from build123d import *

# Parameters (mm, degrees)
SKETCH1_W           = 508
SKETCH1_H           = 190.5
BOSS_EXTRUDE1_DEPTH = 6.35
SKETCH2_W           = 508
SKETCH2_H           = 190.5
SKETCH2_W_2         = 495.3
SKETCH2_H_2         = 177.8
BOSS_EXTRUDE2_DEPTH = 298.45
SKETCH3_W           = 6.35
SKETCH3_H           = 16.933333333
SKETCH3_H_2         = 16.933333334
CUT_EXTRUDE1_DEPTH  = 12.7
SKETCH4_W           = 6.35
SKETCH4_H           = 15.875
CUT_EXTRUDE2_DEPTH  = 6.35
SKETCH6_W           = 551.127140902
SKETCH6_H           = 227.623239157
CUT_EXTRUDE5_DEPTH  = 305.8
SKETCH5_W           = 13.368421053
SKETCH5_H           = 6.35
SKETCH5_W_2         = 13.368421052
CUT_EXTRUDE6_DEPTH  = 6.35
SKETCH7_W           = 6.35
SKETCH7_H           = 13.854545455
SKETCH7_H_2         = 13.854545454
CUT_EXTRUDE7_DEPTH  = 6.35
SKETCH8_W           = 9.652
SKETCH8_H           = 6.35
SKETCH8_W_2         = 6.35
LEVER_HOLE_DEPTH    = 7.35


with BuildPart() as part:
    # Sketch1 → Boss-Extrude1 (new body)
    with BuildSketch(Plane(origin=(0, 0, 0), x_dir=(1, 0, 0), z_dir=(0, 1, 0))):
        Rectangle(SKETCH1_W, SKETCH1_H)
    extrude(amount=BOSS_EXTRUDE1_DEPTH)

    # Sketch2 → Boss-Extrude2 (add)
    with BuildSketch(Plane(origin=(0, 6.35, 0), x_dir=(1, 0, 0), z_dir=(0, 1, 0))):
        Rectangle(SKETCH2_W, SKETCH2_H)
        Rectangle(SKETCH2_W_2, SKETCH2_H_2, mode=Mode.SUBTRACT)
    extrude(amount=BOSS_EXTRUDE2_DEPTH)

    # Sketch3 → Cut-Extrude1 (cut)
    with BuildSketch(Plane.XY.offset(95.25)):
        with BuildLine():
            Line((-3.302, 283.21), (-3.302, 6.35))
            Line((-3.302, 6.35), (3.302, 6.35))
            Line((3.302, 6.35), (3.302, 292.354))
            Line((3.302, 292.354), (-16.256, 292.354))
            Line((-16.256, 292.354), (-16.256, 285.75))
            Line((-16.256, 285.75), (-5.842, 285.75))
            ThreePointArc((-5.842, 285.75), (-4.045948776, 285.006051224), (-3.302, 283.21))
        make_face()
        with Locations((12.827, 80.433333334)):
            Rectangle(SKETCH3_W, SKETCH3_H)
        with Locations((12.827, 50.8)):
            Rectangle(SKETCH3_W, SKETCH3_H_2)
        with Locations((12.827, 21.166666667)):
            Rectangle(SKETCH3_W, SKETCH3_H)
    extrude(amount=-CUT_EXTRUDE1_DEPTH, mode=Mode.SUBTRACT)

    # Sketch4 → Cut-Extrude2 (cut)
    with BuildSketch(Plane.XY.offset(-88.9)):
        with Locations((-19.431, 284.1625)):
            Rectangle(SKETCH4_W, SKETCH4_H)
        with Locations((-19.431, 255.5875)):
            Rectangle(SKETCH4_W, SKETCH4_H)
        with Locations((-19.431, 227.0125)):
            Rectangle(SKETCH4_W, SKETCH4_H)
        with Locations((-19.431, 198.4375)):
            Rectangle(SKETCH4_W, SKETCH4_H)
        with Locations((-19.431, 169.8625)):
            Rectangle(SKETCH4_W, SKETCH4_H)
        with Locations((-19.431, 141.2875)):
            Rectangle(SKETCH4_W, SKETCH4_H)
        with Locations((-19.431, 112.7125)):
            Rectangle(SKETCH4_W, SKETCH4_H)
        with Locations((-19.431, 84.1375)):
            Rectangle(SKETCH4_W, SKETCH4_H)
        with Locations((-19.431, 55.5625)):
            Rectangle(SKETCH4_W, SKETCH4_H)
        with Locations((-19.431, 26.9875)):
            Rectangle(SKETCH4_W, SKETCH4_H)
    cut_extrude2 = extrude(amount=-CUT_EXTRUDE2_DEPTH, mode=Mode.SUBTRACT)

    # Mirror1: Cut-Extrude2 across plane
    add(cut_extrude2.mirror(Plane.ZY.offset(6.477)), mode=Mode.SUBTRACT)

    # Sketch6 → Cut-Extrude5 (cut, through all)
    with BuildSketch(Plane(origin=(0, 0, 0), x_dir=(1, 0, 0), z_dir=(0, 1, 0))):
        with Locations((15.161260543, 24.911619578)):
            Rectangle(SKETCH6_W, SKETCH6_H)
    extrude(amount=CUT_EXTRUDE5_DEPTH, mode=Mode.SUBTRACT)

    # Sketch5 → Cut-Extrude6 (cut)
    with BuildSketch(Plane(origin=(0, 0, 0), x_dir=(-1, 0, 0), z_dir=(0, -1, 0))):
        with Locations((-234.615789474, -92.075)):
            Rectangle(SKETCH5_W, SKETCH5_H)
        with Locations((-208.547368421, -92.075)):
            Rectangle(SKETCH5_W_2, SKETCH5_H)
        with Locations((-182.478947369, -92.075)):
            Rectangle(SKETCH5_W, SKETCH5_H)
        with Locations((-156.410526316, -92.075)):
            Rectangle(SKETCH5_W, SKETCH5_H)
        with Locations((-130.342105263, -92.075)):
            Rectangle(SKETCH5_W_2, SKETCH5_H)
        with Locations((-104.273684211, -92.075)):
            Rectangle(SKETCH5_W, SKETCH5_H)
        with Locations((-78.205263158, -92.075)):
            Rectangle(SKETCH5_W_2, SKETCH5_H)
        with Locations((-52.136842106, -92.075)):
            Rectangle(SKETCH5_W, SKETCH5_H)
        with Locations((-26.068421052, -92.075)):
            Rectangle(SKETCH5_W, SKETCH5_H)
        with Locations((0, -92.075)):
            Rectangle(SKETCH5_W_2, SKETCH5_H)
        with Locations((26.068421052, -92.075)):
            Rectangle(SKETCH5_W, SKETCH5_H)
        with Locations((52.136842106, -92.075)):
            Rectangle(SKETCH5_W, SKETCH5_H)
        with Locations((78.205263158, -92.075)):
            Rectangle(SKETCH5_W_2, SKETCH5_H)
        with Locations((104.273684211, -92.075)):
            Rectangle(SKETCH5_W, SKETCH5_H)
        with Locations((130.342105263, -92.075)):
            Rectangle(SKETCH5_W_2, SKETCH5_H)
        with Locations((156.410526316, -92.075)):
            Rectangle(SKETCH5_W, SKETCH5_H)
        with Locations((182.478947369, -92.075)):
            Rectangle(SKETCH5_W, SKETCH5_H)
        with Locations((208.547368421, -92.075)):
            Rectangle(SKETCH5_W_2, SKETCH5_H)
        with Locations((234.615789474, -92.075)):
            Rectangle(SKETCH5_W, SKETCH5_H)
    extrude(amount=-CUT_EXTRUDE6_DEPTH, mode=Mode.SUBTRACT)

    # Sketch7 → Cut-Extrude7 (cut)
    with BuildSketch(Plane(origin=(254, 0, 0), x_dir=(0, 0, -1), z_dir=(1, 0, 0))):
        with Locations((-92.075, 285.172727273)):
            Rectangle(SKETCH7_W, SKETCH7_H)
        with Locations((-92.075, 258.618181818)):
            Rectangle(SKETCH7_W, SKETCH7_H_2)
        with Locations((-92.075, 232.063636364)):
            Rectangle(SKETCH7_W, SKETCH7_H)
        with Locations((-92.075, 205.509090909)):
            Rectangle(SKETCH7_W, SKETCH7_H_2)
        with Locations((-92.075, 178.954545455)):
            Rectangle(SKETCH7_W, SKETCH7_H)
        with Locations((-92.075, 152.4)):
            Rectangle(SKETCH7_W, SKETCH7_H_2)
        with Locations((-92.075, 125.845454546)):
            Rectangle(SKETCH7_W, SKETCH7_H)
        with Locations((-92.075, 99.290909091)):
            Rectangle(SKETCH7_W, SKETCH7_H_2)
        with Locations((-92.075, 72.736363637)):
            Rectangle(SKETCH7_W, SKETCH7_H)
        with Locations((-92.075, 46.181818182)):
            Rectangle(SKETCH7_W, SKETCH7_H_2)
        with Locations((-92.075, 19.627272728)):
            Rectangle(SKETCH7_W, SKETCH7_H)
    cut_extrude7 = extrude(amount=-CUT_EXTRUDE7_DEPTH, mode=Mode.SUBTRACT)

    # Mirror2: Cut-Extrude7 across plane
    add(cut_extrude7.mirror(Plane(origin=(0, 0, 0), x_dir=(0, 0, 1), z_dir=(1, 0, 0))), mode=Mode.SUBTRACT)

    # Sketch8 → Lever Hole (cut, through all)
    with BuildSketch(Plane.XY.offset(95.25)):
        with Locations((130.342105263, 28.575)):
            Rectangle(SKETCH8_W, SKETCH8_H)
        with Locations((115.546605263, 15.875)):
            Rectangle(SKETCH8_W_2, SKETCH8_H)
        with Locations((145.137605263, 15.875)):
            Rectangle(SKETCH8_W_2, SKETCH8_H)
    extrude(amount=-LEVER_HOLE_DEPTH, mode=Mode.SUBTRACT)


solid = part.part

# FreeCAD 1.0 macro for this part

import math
import FreeCAD as App
import Part
import Sketcher
Q = App.Units.Quantity


def add_polygon(sketch, points):
    """Adds a closed chain of lines whose ends are joined by coincident constraints."""
    first, n = sketch.GeometryCount, len(points)
    for a, b in zip(points, points[1:] + points[:1]):
        sketch.addGeometry(Part.LineSegment(App.Vector(*a, 0), App.Vector(*b, 0)), False)
    for i in range(n):
        sketch.addConstraint(Sketcher.Constraint("Coincident", first + i, 2, first + (i + 1) % n, 1))

doc = App.newDocument("Part")
body = doc.addObject("PartDesign::Body", "Body")

# Sketch on XZ plane
sketch1 = body.newObject("Sketcher::SketchObject", "Sketch")
sketch1.AttachmentSupport = (doc.getObject("XZ_Plane"), [""])
sketch1.MapMode = "FlatFace"
add_polygon(sketch1, [(-254, -95.25), (-254, 95.25), (254, 95.25), (254, -95.25)])  # lines 0-3
sketch1.addConstraint(Sketcher.Constraint("Vertical", 0))
sketch1.addConstraint(Sketcher.Constraint("Horizontal", 1))
sketch1.addConstraint(Sketcher.Constraint("Vertical", 2))
sketch1.addConstraint(Sketcher.Constraint("Horizontal", 3))
sketch1.addConstraint(Sketcher.Constraint("Symmetric", 0, 2, 2, 2, -1, 1))
sketch1.addConstraint(Sketcher.Constraint("DistanceX", 1, 1, 1, 2, Q("20 in")))
sketch1.addConstraint(Sketcher.Constraint("DistanceY", 0, 1, 0, 2, Q("7.5 in")))
pad1 = body.newObject("PartDesign::Pad", "Pad")
pad1.Profile = sketch1
pad1.Length = Q("0.25 in")
pad1.Reversed = True

# Sketch on XZ plane
sketch2 = body.newObject("Sketcher::SketchObject", "Sketch001")
sketch2.AttachmentSupport = (doc.getObject("XZ_Plane"), [""])
sketch2.MapMode = "FlatFace"
sketch2.AttachmentOffset = App.Placement(App.Vector(0, 0, -0.25 * 25.4), App.Rotation())
add_polygon(sketch2, [(-254, -95.25), (-254, 95.25), (254, 95.25), (254, -95.25)])  # lines 0-3
add_polygon(sketch2, [(247.65, 88.9), (-247.65, 88.9), (-247.65, -88.9), (247.65, -88.9)])  # lines 4-7
sketch2.addConstraint(Sketcher.Constraint("Vertical", 0))
sketch2.addConstraint(Sketcher.Constraint("Horizontal", 1))
sketch2.addConstraint(Sketcher.Constraint("Vertical", 2))
sketch2.addConstraint(Sketcher.Constraint("Horizontal", 3))
sketch2.addConstraint(Sketcher.Constraint("Horizontal", 4))
sketch2.addConstraint(Sketcher.Constraint("Vertical", 5))
sketch2.addConstraint(Sketcher.Constraint("Horizontal", 6))
sketch2.addConstraint(Sketcher.Constraint("Vertical", 7))
sketch2.addConstraint(Sketcher.Constraint("Symmetric", 0, 2, 2, 2, -1, 1))
sketch2.addConstraint(Sketcher.Constraint("Symmetric", 4, 2, 6, 2, -1, 1))
sketch2.addConstraint(Sketcher.Constraint("DistanceX", 1, 1, 1, 2, Q("20 in")))
sketch2.addConstraint(Sketcher.Constraint("DistanceY", 5, 2, 5, 1, Q("7 in")))
sketch2.addConstraint(Sketcher.Constraint("DistanceX", 4, 2, 4, 1, Q("19.5 in")))
sketch2.addConstraint(Sketcher.Constraint("DistanceY", 0, 1, 0, 2, Q("7.5 in")))
pad2 = body.newObject("PartDesign::Pad", "Pad001")
pad2.Profile = sketch2
pad2.Length = Q("11.75 in")
pad2.Reversed = True

# Sketch on XY plane
sketch3 = body.newObject("Sketcher::SketchObject", "Sketch002")
sketch3.AttachmentSupport = (doc.getObject("XY_Plane"), [""])
sketch3.MapMode = "FlatFace"
sketch3.AttachmentOffset = App.Placement(App.Vector(0, 0, 3.75 * 25.4), App.Rotation())
sketch3.addGeometry(Part.LineSegment(App.Vector(-3.302, 283.21, 0), App.Vector(-3.302, 6.35, 0)), False)  # 0
sketch3.addGeometry(Part.LineSegment(App.Vector(-3.302, 6.35, 0), App.Vector(3.302, 6.35, 0)), False)  # 1
sketch3.addGeometry(Part.LineSegment(App.Vector(3.302, 6.35, 0), App.Vector(3.302, 292.354, 0)), False)  # 2
sketch3.addGeometry(Part.LineSegment(App.Vector(3.302, 292.354, 0), App.Vector(-16.256, 292.354, 0)), False)  # 3
sketch3.addGeometry(Part.LineSegment(App.Vector(-16.256, 292.354, 0), App.Vector(-16.256, 285.75, 0)), False)  # 4
sketch3.addGeometry(Part.LineSegment(App.Vector(-16.256, 285.75, 0), App.Vector(-5.842, 285.75, 0)), False)  # 5
sketch3.addGeometry(Part.ArcOfCircle(Part.Circle(App.Vector(-5.842, 283.21, 0), App.Vector(0, 0, 1), 2.54), math.radians(0), math.radians(90)), False)  # 6
add_polygon(sketch3, [(9.652, 88.9), (9.652, 71.966667), (16.002, 71.966667), (16.002, 88.9)])  # lines 7-10
add_polygon(sketch3, [(9.652, 59.266667), (9.652, 42.333333), (16.002, 42.333333), (16.002, 59.266667)])  # lines 11-14
add_polygon(sketch3, [(9.652, 29.633333), (9.652, 12.7), (16.002, 12.7), (16.002, 29.633333)])  # lines 15-18
sketch3.addConstraint(Sketcher.Constraint("Coincident", 0, 2, 1, 1))
sketch3.addConstraint(Sketcher.Constraint("Coincident", 1, 2, 2, 1))
sketch3.addConstraint(Sketcher.Constraint("Coincident", 2, 2, 3, 1))
sketch3.addConstraint(Sketcher.Constraint("Coincident", 3, 2, 4, 1))
sketch3.addConstraint(Sketcher.Constraint("Coincident", 4, 2, 5, 1))
sketch3.addConstraint(Sketcher.Constraint("Tangent", 5, 2, 6, 2))
sketch3.addConstraint(Sketcher.Constraint("Tangent", 6, 1, 0, 1))
sketch3.addConstraint(Sketcher.Constraint("Vertical", 0))
sketch3.addConstraint(Sketcher.Constraint("Horizontal", 1))
sketch3.addConstraint(Sketcher.Constraint("Vertical", 2))
sketch3.addConstraint(Sketcher.Constraint("Horizontal", 3))
sketch3.addConstraint(Sketcher.Constraint("Vertical", 4))
sketch3.addConstraint(Sketcher.Constraint("Horizontal", 5))
sketch3.addConstraint(Sketcher.Constraint("Vertical", 7))
sketch3.addConstraint(Sketcher.Constraint("Horizontal", 8))
sketch3.addConstraint(Sketcher.Constraint("Vertical", 9))
sketch3.addConstraint(Sketcher.Constraint("Horizontal", 10))
sketch3.addConstraint(Sketcher.Constraint("Vertical", 11))
sketch3.addConstraint(Sketcher.Constraint("Horizontal", 12))
sketch3.addConstraint(Sketcher.Constraint("Vertical", 13))
sketch3.addConstraint(Sketcher.Constraint("Horizontal", 14))
sketch3.addConstraint(Sketcher.Constraint("Vertical", 15))
sketch3.addConstraint(Sketcher.Constraint("Horizontal", 16))
sketch3.addConstraint(Sketcher.Constraint("Vertical", 17))
sketch3.addConstraint(Sketcher.Constraint("Horizontal", 18))
sketch3.addConstraint(Sketcher.Constraint("Vertical", 10, 2, 11, 2))
sketch3.addConstraint(Sketcher.Constraint("Vertical", 9, 2, 12, 2))
sketch3.addConstraint(Sketcher.Constraint("Vertical", 14, 2, 15, 2))
sketch3.addConstraint(Sketcher.Constraint("Vertical", 13, 2, 16, 2))
sketch3.addConstraint(Sketcher.Constraint("Equal", 1, 4))
sketch3.addConstraint(Sketcher.Constraint("Equal", 9, 11))
sketch3.addConstraint(Sketcher.Constraint("Equal", 13, 15))
sketch3.addConstraint(Sketcher.Constraint("Radius", 6, Q("0.1 in")))
sketch3.addConstraint(Sketcher.Constraint("DistanceY", 0, 2, 0, 1, Q("10.9 in")))
sketch3.addConstraint(Sketcher.Constraint("DistanceX", 1, 1, 1, 2, Q("0.26 in")))
sketch3.addConstraint(Sketcher.Constraint("DistanceX", 3, 2, 3, 1, Q("0.77 in")))
sketch3.addConstraint(Sketcher.Constraint("DistanceX", 8, 1, 8, 2, Q("0.25 in")))
sketch3.addConstraint(Sketcher.Constraint("DistanceY", -1, 1, 9, 2, Q("3.5 in")))
sketch3.addConstraint(Sketcher.Constraint("DistanceY", -1, 1, 15, 2, Q("0.5 in")))
sketch3.addConstraint(Sketcher.Constraint("DistanceX", 1, 2, 8, 2, Q("0.5 in")))
sketch3.addConstraint(Sketcher.Constraint("DistanceY", 13, 2, 8, 2, Q("0.5 in")))
sketch3.addConstraint(Sketcher.Constraint("DistanceY", 17, 2, 12, 2, Q("0.5 in")))
sketch3.addConstraint(Sketcher.Constraint("DistanceX", 6, 3, -1, 1, Q("0.23 in")))
sketch3.addConstraint(Sketcher.Constraint("DistanceY", -1, 1, 6, 3, Q("11.15 in")))
pocket1 = body.newObject("PartDesign::Pocket", "Pocket")
pocket1.Profile = sketch3
pocket1.Length = Q("0.5 in")

# Sketch on XY plane
sketch4 = body.newObject("Sketcher::SketchObject", "Sketch003")
sketch4.AttachmentSupport = (doc.getObject("XY_Plane"), [""])
sketch4.MapMode = "FlatFace"
sketch4.AttachmentOffset = App.Placement(App.Vector(0, 0, -3.5 * 25.4), App.Rotation())
add_polygon(sketch4, [(-22.606, 292.1), (-22.606, 276.225), (-16.256, 276.225), (-16.256, 292.1)])  # lines 0-3
add_polygon(sketch4, [(-22.606, 263.525), (-22.606, 247.65), (-16.256, 247.65), (-16.256, 263.525)])  # lines 4-7
add_polygon(sketch4, [(-22.606, 234.95), (-22.606, 219.075), (-16.256, 219.075), (-16.256, 234.95)])  # lines 8-11
add_polygon(sketch4, [(-22.606, 206.375), (-22.606, 190.5), (-16.256, 190.5), (-16.256, 206.375)])  # lines 12-15
add_polygon(sketch4, [(-22.606, 177.8), (-22.606, 161.925), (-16.256, 161.925), (-16.256, 177.8)])  # lines 16-19
add_polygon(sketch4, [(-22.606, 149.225), (-22.606, 133.35), (-16.256, 133.35), (-16.256, 149.225)])  # lines 20-23
add_polygon(sketch4, [(-22.606, 120.65), (-22.606, 104.775), (-16.256, 104.775), (-16.256, 120.65)])  # lines 24-27
add_polygon(sketch4, [(-22.606, 92.075), (-22.606, 76.2), (-16.256, 76.2), (-16.256, 92.075)])  # lines 28-31
add_polygon(sketch4, [(-22.606, 63.5), (-22.606, 47.625), (-16.256, 47.625), (-16.256, 63.5)])  # lines 32-35
add_polygon(sketch4, [(-22.606, 34.925), (-22.606, 19.05), (-16.256, 19.05), (-16.256, 34.925)])  # lines 36-39
sketch4.addConstraint(Sketcher.Constraint("Vertical", 0))
sketch4.addConstraint(Sketcher.Constraint("Horizontal", 1))
sketch4.addConstraint(Sketcher.Constraint("Vertical", 2))
sketch4.addConstraint(Sketcher.Constraint("Horizontal", 3))
sketch4.addConstraint(Sketcher.Constraint("Vertical", 4))
sketch4.addConstraint(Sketcher.Constraint("Horizontal", 5))
sketch4.addConstraint(Sketcher.Constraint("Vertical", 6))
sketch4.addConstraint(Sketcher.Constraint("Horizontal", 7))
sketch4.addConstraint(Sketcher.Constraint("Vertical", 8))
sketch4.addConstraint(Sketcher.Constraint("Horizontal", 9))
sketch4.addConstraint(Sketcher.Constraint("Vertical", 10))
sketch4.addConstraint(Sketcher.Constraint("Horizontal", 11))
sketch4.addConstraint(Sketcher.Constraint("Vertical", 12))
sketch4.addConstraint(Sketcher.Constraint("Horizontal", 13))
sketch4.addConstraint(Sketcher.Constraint("Vertical", 14))
sketch4.addConstraint(Sketcher.Constraint("Horizontal", 15))
sketch4.addConstraint(Sketcher.Constraint("Vertical", 16))
sketch4.addConstraint(Sketcher.Constraint("Horizontal", 17))
sketch4.addConstraint(Sketcher.Constraint("Vertical", 18))
sketch4.addConstraint(Sketcher.Constraint("Horizontal", 19))
sketch4.addConstraint(Sketcher.Constraint("Vertical", 20))
sketch4.addConstraint(Sketcher.Constraint("Horizontal", 21))
sketch4.addConstraint(Sketcher.Constraint("Vertical", 22))
sketch4.addConstraint(Sketcher.Constraint("Horizontal", 23))
sketch4.addConstraint(Sketcher.Constraint("Vertical", 24))
sketch4.addConstraint(Sketcher.Constraint("Horizontal", 25))
sketch4.addConstraint(Sketcher.Constraint("Vertical", 26))
sketch4.addConstraint(Sketcher.Constraint("Horizontal", 27))
sketch4.addConstraint(Sketcher.Constraint("Vertical", 28))
sketch4.addConstraint(Sketcher.Constraint("Horizontal", 29))
sketch4.addConstraint(Sketcher.Constraint("Vertical", 30))
sketch4.addConstraint(Sketcher.Constraint("Horizontal", 31))
sketch4.addConstraint(Sketcher.Constraint("Vertical", 32))
sketch4.addConstraint(Sketcher.Constraint("Horizontal", 33))
sketch4.addConstraint(Sketcher.Constraint("Vertical", 34))
sketch4.addConstraint(Sketcher.Constraint("Horizontal", 35))
sketch4.addConstraint(Sketcher.Constraint("Vertical", 36))
sketch4.addConstraint(Sketcher.Constraint("Horizontal", 37))
sketch4.addConstraint(Sketcher.Constraint("Vertical", 38))
sketch4.addConstraint(Sketcher.Constraint("Horizontal", 39))
sketch4.addConstraint(Sketcher.Constraint("Vertical", 3, 2, 4, 2))
sketch4.addConstraint(Sketcher.Constraint("Vertical", 2, 2, 5, 2))
sketch4.addConstraint(Sketcher.Constraint("Vertical", 7, 2, 8, 2))
sketch4.addConstraint(Sketcher.Constraint("Vertical", 6, 2, 9, 2))
sketch4.addConstraint(Sketcher.Constraint("Vertical", 11, 2, 12, 2))
sketch4.addConstraint(Sketcher.Constraint("Vertical", 10, 2, 13, 2))
sketch4.addConstraint(Sketcher.Constraint("Vertical", 15, 2, 16, 2))
sketch4.addConstraint(Sketcher.Constraint("Vertical", 14, 2, 17, 2))
sketch4.addConstraint(Sketcher.Constraint("Vertical", 19, 2, 20, 2))
sketch4.addConstraint(Sketcher.Constraint("Vertical", 18, 2, 21, 2))
sketch4.addConstraint(Sketcher.Constraint("Vertical", 23, 2, 24, 2))
sketch4.addConstraint(Sketcher.Constraint("Vertical", 22, 2, 25, 2))
sketch4.addConstraint(Sketcher.Constraint("Vertical", 27, 2, 28, 2))
sketch4.addConstraint(Sketcher.Constraint("Vertical", 26, 2, 29, 2))
sketch4.addConstraint(Sketcher.Constraint("Vertical", 31, 2, 32, 2))
sketch4.addConstraint(Sketcher.Constraint("Vertical", 30, 2, 33, 2))
sketch4.addConstraint(Sketcher.Constraint("Vertical", 35, 2, 36, 2))
sketch4.addConstraint(Sketcher.Constraint("Vertical", 34, 2, 37, 2))
sketch4.addConstraint(Sketcher.Constraint("Equal", 2, 4))
sketch4.addConstraint(Sketcher.Constraint("Equal", 6, 8))
sketch4.addConstraint(Sketcher.Constraint("Equal", 10, 12))
sketch4.addConstraint(Sketcher.Constraint("Equal", 14, 16))
sketch4.addConstraint(Sketcher.Constraint("Equal", 18, 20))
sketch4.addConstraint(Sketcher.Constraint("Equal", 22, 24))
sketch4.addConstraint(Sketcher.Constraint("Equal", 26, 28))
sketch4.addConstraint(Sketcher.Constraint("Equal", 30, 32))
sketch4.addConstraint(Sketcher.Constraint("Equal", 34, 36))
sketch4.addConstraint(Sketcher.Constraint("DistanceY", -1, 1, 18, 2, Q("7 in")))
sketch4.addConstraint(Sketcher.Constraint("DistanceY", -1, 1, 28, 2, Q("3 in")))
sketch4.addConstraint(Sketcher.Constraint("DistanceX", 1, 1, 1, 2, Q("0.25 in")))
sketch4.addConstraint(Sketcher.Constraint("DistanceY", -1, 1, 2, 2, Q("11.5 in")))
sketch4.addConstraint(Sketcher.Constraint("DistanceY", -1, 1, 12, 2, Q("7.5 in")))
sketch4.addConstraint(Sketcher.Constraint("DistanceY", -1, 1, 34, 2, Q("2.5 in")))
sketch4.addConstraint(Sketcher.Constraint("DistanceY", 6, 2, 1, 2, Q("0.5 in")))
sketch4.addConstraint(Sketcher.Constraint("DistanceY", 10, 2, 5, 2, Q("0.5 in")))
sketch4.addConstraint(Sketcher.Constraint("DistanceY", 14, 2, 9, 2, Q("0.5 in")))
sketch4.addConstraint(Sketcher.Constraint("DistanceY", 22, 2, 17, 2, Q("0.5 in")))
sketch4.addConstraint(Sketcher.Constraint("DistanceY", 26, 2, 21, 2, Q("0.5 in")))
sketch4.addConstraint(Sketcher.Constraint("DistanceY", 38, 2, 33, 2, Q("0.5 in")))
sketch4.addConstraint(Sketcher.Constraint("DistanceX", 0, 2, -1, 1, Q("0.89 in")))
pocket2 = body.newObject("PartDesign::Pocket", "Pocket001")
pocket2.Profile = sketch4
pocket2.Length = Q("0.25 in")
doc.recompute()

datumplane = body.newObject("PartDesign::Plane", "DatumPlane")
datumplane.AttachmentSupport = (doc.getObject("YZ_Plane"), [""])
datumplane.MapMode = "FlatFace"
datumplane.AttachmentOffset = App.Placement(App.Vector(0, 0, -0.255 * 25.4), App.Rotation())
mirrored = body.newObject("PartDesign::Mirrored", "Mirrored")
mirrored.Originals = [pocket2]
mirrored.MirrorPlane = (datumplane, [""])
body.Tip = mirrored

# Sketch on XZ plane
sketch5 = body.newObject("Sketcher::SketchObject", "Sketch004")
sketch5.AttachmentSupport = (doc.getObject("XZ_Plane"), [""])
sketch5.MapMode = "FlatFace"
add_polygon(sketch5, [(-260.40231, -138.723239), (-260.40231, 88.9), (290.724831, 88.9), (290.724831, -138.723239)])  # lines 0-3
sketch5.addConstraint(Sketcher.Constraint("Vertical", 0))
sketch5.addConstraint(Sketcher.Constraint("Horizontal", 1))
sketch5.addConstraint(Sketcher.Constraint("Vertical", 2))
sketch5.addConstraint(Sketcher.Constraint("Horizontal", 3))
sketch5.addConstraint(Sketcher.Constraint("DistanceY", -1, 1, 0, 2, Q("3.5 in")))
sketch5.addConstraint(Sketcher.Constraint("DistanceX", 1, 1, 1, 2, Q("551.127141 mm")))
sketch5.addConstraint(Sketcher.Constraint("DistanceY", 0, 1, 0, 2, Q("227.623239 mm")))
sketch5.addConstraint(Sketcher.Constraint("DistanceX", 0, 2, -1, 1, Q("260.40231 mm")))
pocket3 = body.newObject("PartDesign::Pocket", "Pocket002")
pocket3.Profile = sketch5
pocket3.Type = "ThroughAll"

# Sketch on XZ plane
sketch6 = body.newObject("Sketcher::SketchObject", "Sketch005")
sketch6.AttachmentSupport = (doc.getObject("XZ_Plane"), [""])
sketch6.MapMode = "FlatFace"
add_polygon(sketch6, [(241.3, 88.9), (241.3, 95.25), (227.931579, 95.25), (227.931579, 88.9)])  # lines 0-3
add_polygon(sketch6, [(215.231579, 88.9), (215.231579, 95.25), (201.863158, 95.25), (201.863158, 88.9)])  # lines 4-7
add_polygon(sketch6, [(189.163158, 88.9), (189.163158, 95.25), (175.794737, 95.25), (175.794737, 88.9)])  # lines 8-11
add_polygon(sketch6, [(163.094737, 88.9), (163.094737, 95.25), (149.726316, 95.25), (149.726316, 88.9)])  # lines 12-15
add_polygon(sketch6, [(137.026316, 88.9), (137.026316, 95.25), (123.657895, 95.25), (123.657895, 88.9)])  # lines 16-19
add_polygon(sketch6, [(110.957895, 88.9), (110.957895, 95.25), (97.589474, 95.25), (97.589474, 88.9)])  # lines 20-23
add_polygon(sketch6, [(84.889474, 88.9), (84.889474, 95.25), (71.521053, 95.25), (71.521053, 88.9)])  # lines 24-27
add_polygon(sketch6, [(58.821053, 88.9), (58.821053, 95.25), (45.452632, 95.25), (45.452632, 88.9)])  # lines 28-31
add_polygon(sketch6, [(32.752632, 88.9), (32.752632, 95.25), (19.384211, 95.25), (19.384211, 88.9)])  # lines 32-35
add_polygon(sketch6, [(6.684211, 88.9), (6.684211, 95.25), (-6.684211, 95.25), (-6.684211, 88.9)])  # lines 36-39
add_polygon(sketch6, [(-19.384211, 88.9), (-19.384211, 95.25), (-32.752632, 95.25), (-32.752632, 88.9)])  # lines 40-43
add_polygon(sketch6, [(-45.452632, 88.9), (-45.452632, 95.25), (-58.821053, 95.25), (-58.821053, 88.9)])  # lines 44-47
add_polygon(sketch6, [(-71.521053, 88.9), (-71.521053, 95.25), (-84.889474, 95.25), (-84.889474, 88.9)])  # lines 48-51
add_polygon(sketch6, [(-97.589474, 88.9), (-97.589474, 95.25), (-110.957895, 95.25), (-110.957895, 88.9)])  # lines 52-55
add_polygon(sketch6, [(-123.657895, 88.9), (-123.657895, 95.25), (-137.026316, 95.25), (-137.026316, 88.9)])  # lines 56-59
add_polygon(sketch6, [(-149.726316, 88.9), (-149.726316, 95.25), (-163.094737, 95.25), (-163.094737, 88.9)])  # lines 60-63
add_polygon(sketch6, [(-175.794737, 88.9), (-175.794737, 95.25), (-189.163158, 95.25), (-189.163158, 88.9)])  # lines 64-67
add_polygon(sketch6, [(-201.863158, 88.9), (-201.863158, 95.25), (-215.231579, 95.25), (-215.231579, 88.9)])  # lines 68-71
add_polygon(sketch6, [(-227.931579, 88.9), (-227.931579, 95.25), (-241.3, 95.25), (-241.3, 88.9)])  # lines 72-75
sketch6.addConstraint(Sketcher.Constraint("Vertical", 0))
sketch6.addConstraint(Sketcher.Constraint("Horizontal", 1))
sketch6.addConstraint(Sketcher.Constraint("Vertical", 2))
sketch6.addConstraint(Sketcher.Constraint("Horizontal", 3))
sketch6.addConstraint(Sketcher.Constraint("Vertical", 4))
sketch6.addConstraint(Sketcher.Constraint("Horizontal", 5))
sketch6.addConstraint(Sketcher.Constraint("Vertical", 6))
sketch6.addConstraint(Sketcher.Constraint("Horizontal", 7))
sketch6.addConstraint(Sketcher.Constraint("Vertical", 8))
sketch6.addConstraint(Sketcher.Constraint("Horizontal", 9))
sketch6.addConstraint(Sketcher.Constraint("Vertical", 10))
sketch6.addConstraint(Sketcher.Constraint("Horizontal", 11))
sketch6.addConstraint(Sketcher.Constraint("Vertical", 12))
sketch6.addConstraint(Sketcher.Constraint("Horizontal", 13))
sketch6.addConstraint(Sketcher.Constraint("Vertical", 14))
sketch6.addConstraint(Sketcher.Constraint("Horizontal", 15))
sketch6.addConstraint(Sketcher.Constraint("Vertical", 16))
sketch6.addConstraint(Sketcher.Constraint("Horizontal", 17))
sketch6.addConstraint(Sketcher.Constraint("Vertical", 18))
sketch6.addConstraint(Sketcher.Constraint("Horizontal", 19))
sketch6.addConstraint(Sketcher.Constraint("Vertical", 20))
sketch6.addConstraint(Sketcher.Constraint("Horizontal", 21))
sketch6.addConstraint(Sketcher.Constraint("Vertical", 22))
sketch6.addConstraint(Sketcher.Constraint("Horizontal", 23))
sketch6.addConstraint(Sketcher.Constraint("Vertical", 24))
sketch6.addConstraint(Sketcher.Constraint("Horizontal", 25))
sketch6.addConstraint(Sketcher.Constraint("Vertical", 26))
sketch6.addConstraint(Sketcher.Constraint("Horizontal", 27))
sketch6.addConstraint(Sketcher.Constraint("Vertical", 28))
sketch6.addConstraint(Sketcher.Constraint("Horizontal", 29))
sketch6.addConstraint(Sketcher.Constraint("Vertical", 30))
sketch6.addConstraint(Sketcher.Constraint("Horizontal", 31))
sketch6.addConstraint(Sketcher.Constraint("Vertical", 32))
sketch6.addConstraint(Sketcher.Constraint("Horizontal", 33))
sketch6.addConstraint(Sketcher.Constraint("Vertical", 34))
sketch6.addConstraint(Sketcher.Constraint("Horizontal", 35))
sketch6.addConstraint(Sketcher.Constraint("Vertical", 36))
sketch6.addConstraint(Sketcher.Constraint("Horizontal", 37))
sketch6.addConstraint(Sketcher.Constraint("Vertical", 38))
sketch6.addConstraint(Sketcher.Constraint("Horizontal", 39))
sketch6.addConstraint(Sketcher.Constraint("Vertical", 40))
sketch6.addConstraint(Sketcher.Constraint("Horizontal", 41))
sketch6.addConstraint(Sketcher.Constraint("Vertical", 42))
sketch6.addConstraint(Sketcher.Constraint("Horizontal", 43))
sketch6.addConstraint(Sketcher.Constraint("Vertical", 44))
sketch6.addConstraint(Sketcher.Constraint("Horizontal", 45))
sketch6.addConstraint(Sketcher.Constraint("Vertical", 46))
sketch6.addConstraint(Sketcher.Constraint("Horizontal", 47))
sketch6.addConstraint(Sketcher.Constraint("Vertical", 48))
sketch6.addConstraint(Sketcher.Constraint("Horizontal", 49))
sketch6.addConstraint(Sketcher.Constraint("Vertical", 50))
sketch6.addConstraint(Sketcher.Constraint("Horizontal", 51))
sketch6.addConstraint(Sketcher.Constraint("Vertical", 52))
sketch6.addConstraint(Sketcher.Constraint("Horizontal", 53))
sketch6.addConstraint(Sketcher.Constraint("Vertical", 54))
sketch6.addConstraint(Sketcher.Constraint("Horizontal", 55))
sketch6.addConstraint(Sketcher.Constraint("Vertical", 56))
sketch6.addConstraint(Sketcher.Constraint("Horizontal", 57))
sketch6.addConstraint(Sketcher.Constraint("Vertical", 58))
sketch6.addConstraint(Sketcher.Constraint("Horizontal", 59))
sketch6.addConstraint(Sketcher.Constraint("Vertical", 60))
sketch6.addConstraint(Sketcher.Constraint("Horizontal", 61))
sketch6.addConstraint(Sketcher.Constraint("Vertical", 62))
sketch6.addConstraint(Sketcher.Constraint("Horizontal", 63))
sketch6.addConstraint(Sketcher.Constraint("Vertical", 64))
sketch6.addConstraint(Sketcher.Constraint("Horizontal", 65))
sketch6.addConstraint(Sketcher.Constraint("Vertical", 66))
sketch6.addConstraint(Sketcher.Constraint("Horizontal", 67))
sketch6.addConstraint(Sketcher.Constraint("Vertical", 68))
sketch6.addConstraint(Sketcher.Constraint("Horizontal", 69))
sketch6.addConstraint(Sketcher.Constraint("Vertical", 70))
sketch6.addConstraint(Sketcher.Constraint("Horizontal", 71))
sketch6.addConstraint(Sketcher.Constraint("Vertical", 72))
sketch6.addConstraint(Sketcher.Constraint("Horizontal", 73))
sketch6.addConstraint(Sketcher.Constraint("Vertical", 74))
sketch6.addConstraint(Sketcher.Constraint("Horizontal", 75))
sketch6.addConstraint(Sketcher.Constraint("Symmetric", 33, 2, 40, 2, -2))
sketch6.addConstraint(Sketcher.Constraint("Symmetric", 35, 2, 42, 2, -2))
sketch6.addConstraint(Sketcher.Constraint("Symmetric", 29, 2, 44, 2, -2))
sketch6.addConstraint(Sketcher.Constraint("Symmetric", 31, 2, 46, 2, -2))
sketch6.addConstraint(Sketcher.Constraint("Symmetric", 25, 2, 48, 2, -2))
sketch6.addConstraint(Sketcher.Constraint("Symmetric", 27, 2, 50, 2, -2))
sketch6.addConstraint(Sketcher.Constraint("Symmetric", 21, 2, 52, 2, -2))
sketch6.addConstraint(Sketcher.Constraint("Symmetric", 23, 2, 54, 2, -2))
sketch6.addConstraint(Sketcher.Constraint("Symmetric", 17, 2, 56, 2, -2))
sketch6.addConstraint(Sketcher.Constraint("Symmetric", 19, 2, 58, 2, -2))
sketch6.addConstraint(Sketcher.Constraint("Symmetric", 13, 2, 60, 2, -2))
sketch6.addConstraint(Sketcher.Constraint("Symmetric", 15, 2, 62, 2, -2))
sketch6.addConstraint(Sketcher.Constraint("Symmetric", 9, 2, 64, 2, -2))
sketch6.addConstraint(Sketcher.Constraint("Symmetric", 11, 2, 66, 2, -2))
sketch6.addConstraint(Sketcher.Constraint("Symmetric", 5, 2, 68, 2, -2))
sketch6.addConstraint(Sketcher.Constraint("Symmetric", 7, 2, 70, 2, -2))
sketch6.addConstraint(Sketcher.Constraint("Symmetric", 1, 2, 72, 2, -2))
sketch6.addConstraint(Sketcher.Constraint("Symmetric", 3, 2, 74, 2, -2))
sketch6.addConstraint(Sketcher.Constraint("Horizontal", 1, 2, 4, 2))
sketch6.addConstraint(Sketcher.Constraint("Horizontal", 3, 2, 6, 2))
sketch6.addConstraint(Sketcher.Constraint("Horizontal", 5, 2, 8, 2))
sketch6.addConstraint(Sketcher.Constraint("Horizontal", 7, 2, 10, 2))
sketch6.addConstraint(Sketcher.Constraint("Horizontal", 9, 2, 12, 2))
sketch6.addConstraint(Sketcher.Constraint("Horizontal", 11, 2, 14, 2))
sketch6.addConstraint(Sketcher.Constraint("Horizontal", 13, 2, 16, 2))
sketch6.addConstraint(Sketcher.Constraint("Horizontal", 15, 2, 18, 2))
sketch6.addConstraint(Sketcher.Constraint("Horizontal", 17, 2, 20, 2))
sketch6.addConstraint(Sketcher.Constraint("Horizontal", 19, 2, 22, 2))
sketch6.addConstraint(Sketcher.Constraint("Horizontal", 21, 2, 24, 2))
sketch6.addConstraint(Sketcher.Constraint("Horizontal", 23, 2, 26, 2))
sketch6.addConstraint(Sketcher.Constraint("Horizontal", 25, 2, 28, 2))
sketch6.addConstraint(Sketcher.Constraint("Horizontal", 27, 2, 30, 2))
sketch6.addConstraint(Sketcher.Constraint("Horizontal", 29, 2, 32, 2))
sketch6.addConstraint(Sketcher.Constraint("Horizontal", 31, 2, 34, 2))
sketch6.addConstraint(Sketcher.Constraint("Horizontal", 33, 2, 36, 2))
sketch6.addConstraint(Sketcher.Constraint("Horizontal", 35, 2, 38, 2))
sketch6.addConstraint(Sketcher.Constraint("Equal", 3, 5))
sketch6.addConstraint(Sketcher.Constraint("Equal", 7, 9))
sketch6.addConstraint(Sketcher.Constraint("Equal", 11, 13))
sketch6.addConstraint(Sketcher.Constraint("Equal", 15, 17))
sketch6.addConstraint(Sketcher.Constraint("Equal", 19, 21))
sketch6.addConstraint(Sketcher.Constraint("Equal", 23, 25))
sketch6.addConstraint(Sketcher.Constraint("Equal", 27, 29))
sketch6.addConstraint(Sketcher.Constraint("Equal", 31, 33))
sketch6.addConstraint(Sketcher.Constraint("Equal", 35, 37))
sketch6.addConstraint(Sketcher.Constraint("DistanceY", 0, 1, 0, 2, Q("0.25 in")))
sketch6.addConstraint(Sketcher.Constraint("DistanceX", -1, 1, 0, 2, Q("9.5 in")))
sketch6.addConstraint(Sketcher.Constraint("DistanceY", -1, 1, 2, 2, Q("3.5 in")))
sketch6.addConstraint(Sketcher.Constraint("DistanceX", 1, 2, 1, 1, Q("13.368421 mm")))
sketch6.addConstraint(Sketcher.Constraint("DistanceX", -1, 1, 4, 2, Q("215.231579 mm")))
sketch6.addConstraint(Sketcher.Constraint("DistanceX", -1, 1, 29, 2, Q("45.452632 mm")))
sketch6.addConstraint(Sketcher.Constraint("DistanceX", -1, 1, 32, 2, Q("32.752632 mm")))
sketch6.addConstraint(Sketcher.Constraint("DistanceX", -1, 1, 36, 2, Q("6.684211 mm")))
sketch6.addConstraint(Sketcher.Constraint("DistanceX", -1, 1, 8, 2, Q("189.163158 mm")))
sketch6.addConstraint(Sketcher.Constraint("DistanceX", -1, 1, 12, 2, Q("163.094737 mm")))
sketch6.addConstraint(Sketcher.Constraint("DistanceX", -1, 1, 16, 2, Q("137.026316 mm")))
sketch6.addConstraint(Sketcher.Constraint("DistanceX", -1, 1, 20, 2, Q("110.957895 mm")))
sketch6.addConstraint(Sketcher.Constraint("DistanceX", -1, 1, 24, 2, Q("84.889474 mm")))
pocket4 = body.newObject("PartDesign::Pocket", "Pocket003")
pocket4.Profile = sketch6
pocket4.Length = Q("0.25 in")

# Sketch on YZ plane
sketch7 = body.newObject("Sketcher::SketchObject", "Sketch006")
sketch7.AttachmentSupport = (doc.getObject("YZ_Plane"), [""])
sketch7.MapMode = "FlatFace"
sketch7.AttachmentOffset = App.Placement(App.Vector(0, 0, 10 * 25.4), App.Rotation())
add_polygon(sketch7, [(292.1, 95.25), (278.245455, 95.25), (278.245455, 88.9), (292.1, 88.9)])  # lines 0-3
add_polygon(sketch7, [(265.545455, 95.25), (251.690909, 95.25), (251.690909, 88.9), (265.545455, 88.9)])  # lines 4-7
add_polygon(sketch7, [(238.990909, 95.25), (225.136364, 95.25), (225.136364, 88.9), (238.990909, 88.9)])  # lines 8-11
add_polygon(sketch7, [(212.436364, 95.25), (198.581818, 95.25), (198.581818, 88.9), (212.436364, 88.9)])  # lines 12-15
add_polygon(sketch7, [(185.881818, 95.25), (172.027273, 95.25), (172.027273, 88.9), (185.881818, 88.9)])  # lines 16-19
add_polygon(sketch7, [(159.327273, 95.25), (145.472727, 95.25), (145.472727, 88.9), (159.327273, 88.9)])  # lines 20-23
add_polygon(sketch7, [(132.772727, 95.25), (118.918182, 95.25), (118.918182, 88.9), (132.772727, 88.9)])  # lines 24-27
add_polygon(sketch7, [(106.218182, 95.25), (92.363636, 95.25), (92.363636, 88.9), (106.218182, 88.9)])  # lines 28-31
add_polygon(sketch7, [(79.663636, 95.25), (65.809091, 95.25), (65.809091, 88.9), (79.663636, 88.9)])  # lines 32-35
add_polygon(sketch7, [(53.109091, 95.25), (39.254545, 95.25), (39.254545, 88.9), (53.109091, 88.9)])  # lines 36-39
add_polygon(sketch7, [(26.554545, 95.25), (12.7, 95.25), (12.7, 88.9), (26.554545, 88.9)])  # lines 40-43
sketch7.addConstraint(Sketcher.Constraint("Horizontal", 0))
sketch7.addConstraint(Sketcher.Constraint("Vertical", 1))
sketch7.addConstraint(Sketcher.Constraint("Horizontal", 2))
sketch7.addConstraint(Sketcher.Constraint("Vertical", 3))
sketch7.addConstraint(Sketcher.Constraint("Horizontal", 4))
sketch7.addConstraint(Sketcher.Constraint("Vertical", 5))
sketch7.addConstraint(Sketcher.Constraint("Horizontal", 6))
sketch7.addConstraint(Sketcher.Constraint("Vertical", 7))
sketch7.addConstraint(Sketcher.Constraint("Horizontal", 8))
sketch7.addConstraint(Sketcher.Constraint("Vertical", 9))
sketch7.addConstraint(Sketcher.Constraint("Horizontal", 10))
sketch7.addConstraint(Sketcher.Constraint("Vertical", 11))
sketch7.addConstraint(Sketcher.Constraint("Horizontal", 12))
sketch7.addConstraint(Sketcher.Constraint("Vertical", 13))
sketch7.addConstraint(Sketcher.Constraint("Horizontal", 14))
sketch7.addConstraint(Sketcher.Constraint("Vertical", 15))
sketch7.addConstraint(Sketcher.Constraint("Horizontal", 16))
sketch7.addConstraint(Sketcher.Constraint("Vertical", 17))
sketch7.addConstraint(Sketcher.Constraint("Horizontal", 18))
sketch7.addConstraint(Sketcher.Constraint("Vertical", 19))
sketch7.addConstraint(Sketcher.Constraint("Horizontal", 20))
sketch7.addConstraint(Sketcher.Constraint("Vertical", 21))
sketch7.addConstraint(Sketcher.Constraint("Horizontal", 22))
sketch7.addConstraint(Sketcher.Constraint("Vertical", 23))
sketch7.addConstraint(Sketcher.Constraint("Horizontal", 24))
sketch7.addConstraint(Sketcher.Constraint("Vertical", 25))
sketch7.addConstraint(Sketcher.Constraint("Horizontal", 26))
sketch7.addConstraint(Sketcher.Constraint("Vertical", 27))
sketch7.addConstraint(Sketcher.Constraint("Horizontal", 28))
sketch7.addConstraint(Sketcher.Constraint("Vertical", 29))
sketch7.addConstraint(Sketcher.Constraint("Horizontal", 30))
sketch7.addConstraint(Sketcher.Constraint("Vertical", 31))
sketch7.addConstraint(Sketcher.Constraint("Horizontal", 32))
sketch7.addConstraint(Sketcher.Constraint("Vertical", 33))
sketch7.addConstraint(Sketcher.Constraint("Horizontal", 34))
sketch7.addConstraint(Sketcher.Constraint("Vertical", 35))
sketch7.addConstraint(Sketcher.Constraint("Horizontal", 36))
sketch7.addConstraint(Sketcher.Constraint("Vertical", 37))
sketch7.addConstraint(Sketcher.Constraint("Horizontal", 38))
sketch7.addConstraint(Sketcher.Constraint("Vertical", 39))
sketch7.addConstraint(Sketcher.Constraint("Horizontal", 40))
sketch7.addConstraint(Sketcher.Constraint("Vertical", 41))
sketch7.addConstraint(Sketcher.Constraint("Horizontal", 42))
sketch7.addConstraint(Sketcher.Constraint("Vertical", 43))
sketch7.addConstraint(Sketcher.Constraint("Horizontal", 3, 2, 4, 2))
sketch7.addConstraint(Sketcher.Constraint("Horizontal", 2, 2, 5, 2))
sketch7.addConstraint(Sketcher.Constraint("Horizontal", 7, 2, 8, 2))
sketch7.addConstraint(Sketcher.Constraint("Horizontal", 6, 2, 9, 2))
sketch7.addConstraint(Sketcher.Constraint("Horizontal", 11, 2, 12, 2))
sketch7.addConstraint(Sketcher.Constraint("Horizontal", 10, 2, 13, 2))
sketch7.addConstraint(Sketcher.Constraint("Horizontal", 15, 2, 16, 2))
sketch7.addConstraint(Sketcher.Constraint("Horizontal", 14, 2, 17, 2))
sketch7.addConstraint(Sketcher.Constraint("Horizontal", 19, 2, 20, 2))
sketch7.addConstraint(Sketcher.Constraint("Horizontal", 18, 2, 21, 2))
sketch7.addConstraint(Sketcher.Constraint("Horizontal", 23, 2, 24, 2))
sketch7.addConstraint(Sketcher.Constraint("Horizontal", 22, 2, 25, 2))
sketch7.addConstraint(Sketcher.Constraint("Horizontal", 27, 2, 28, 2))
sketch7.addConstraint(Sketcher.Constraint("Horizontal", 26, 2, 29, 2))
sketch7.addConstraint(Sketcher.Constraint("Horizontal", 31, 2, 32, 2))
sketch7.addConstraint(Sketcher.Constraint("Horizontal", 30, 2, 33, 2))
sketch7.addConstraint(Sketcher.Constraint("Horizontal", 35, 2, 36, 2))
sketch7.addConstraint(Sketcher.Constraint("Horizontal", 34, 2, 37, 2))
sketch7.addConstraint(Sketcher.Constraint("Horizontal", 39, 2, 40, 2))
sketch7.addConstraint(Sketcher.Constraint("Horizontal", 38, 2, 41, 2))
sketch7.addConstraint(Sketcher.Constraint("Equal", 2, 4))
sketch7.addConstraint(Sketcher.Constraint("Equal", 6, 8))
sketch7.addConstraint(Sketcher.Constraint("Equal", 10, 12))
sketch7.addConstraint(Sketcher.Constraint("Equal", 14, 16))
sketch7.addConstraint(Sketcher.Constraint("Equal", 18, 20))
sketch7.addConstraint(Sketcher.Constraint("Equal", 22, 24))
sketch7.addConstraint(Sketcher.Constraint("Equal", 26, 28))
sketch7.addConstraint(Sketcher.Constraint("Equal", 30, 32))
sketch7.addConstraint(Sketcher.Constraint("Equal", 34, 36))
sketch7.addConstraint(Sketcher.Constraint("Equal", 38, 40))
sketch7.addConstraint(Sketcher.Constraint("DistanceY", 1, 2, 1, 1, Q("0.25 in")))
sketch7.addConstraint(Sketcher.Constraint("DistanceY", -1, 1, 1, 2, Q("3.5 in")))
sketch7.addConstraint(Sketcher.Constraint("DistanceX", -1, 1, 2, 2, Q("11.5 in")))
sketch7.addConstraint(Sketcher.Constraint("DistanceX", -1, 1, 40, 2, Q("0.5 in")))
sketch7.addConstraint(Sketcher.Constraint("DistanceX", 6, 2, 1, 2, Q("0.5 in")))
sketch7.addConstraint(Sketcher.Constraint("DistanceX", 10, 2, 5, 2, Q("0.5 in")))
sketch7.addConstraint(Sketcher.Constraint("DistanceX", 14, 2, 9, 2, Q("0.5 in")))
sketch7.addConstraint(Sketcher.Constraint("DistanceX", 18, 2, 13, 2, Q("0.5 in")))
sketch7.addConstraint(Sketcher.Constraint("DistanceX", 22, 2, 17, 2, Q("0.5 in")))
sketch7.addConstraint(Sketcher.Constraint("DistanceX", 26, 2, 21, 2, Q("0.5 in")))
sketch7.addConstraint(Sketcher.Constraint("DistanceX", 30, 2, 25, 2, Q("0.5 in")))
sketch7.addConstraint(Sketcher.Constraint("DistanceX", 34, 2, 29, 2, Q("0.5 in")))
sketch7.addConstraint(Sketcher.Constraint("DistanceX", 38, 2, 33, 2, Q("0.5 in")))
sketch7.addConstraint(Sketcher.Constraint("DistanceX", 42, 2, 37, 2, Q("0.5 in")))
pocket5 = body.newObject("PartDesign::Pocket", "Pocket004")
pocket5.Profile = sketch7
pocket5.Length = Q("0.25 in")
doc.recompute()

mirrored2 = body.newObject("PartDesign::Mirrored", "Mirrored001")
mirrored2.Originals = [pocket5]
mirrored2.MirrorPlane = (doc.getObject("YZ_Plane"), [""])
body.Tip = mirrored2

# Sketch on XY plane
sketch8 = body.newObject("Sketcher::SketchObject", "Sketch007")
sketch8.AttachmentSupport = (doc.getObject("XY_Plane"), [""])
sketch8.MapMode = "FlatFace"
sketch8.AttachmentOffset = App.Placement(App.Vector(0, 0, 3.75 * 25.4), App.Rotation())
add_polygon(sketch8, [(125.516105, 31.75), (125.516105, 25.4), (135.168105, 25.4), (135.168105, 31.75)])  # lines 0-3
add_polygon(sketch8, [(112.371605, 19.05), (112.371605, 12.7), (118.721605, 12.7), (118.721605, 19.05)])  # lines 4-7
add_polygon(sketch8, [(141.962605, 19.05), (141.962605, 12.7), (148.312605, 12.7), (148.312605, 19.05)])  # lines 8-11
sketch8.addConstraint(Sketcher.Constraint("Vertical", 0))
sketch8.addConstraint(Sketcher.Constraint("Horizontal", 1))
sketch8.addConstraint(Sketcher.Constraint("Vertical", 2))
sketch8.addConstraint(Sketcher.Constraint("Horizontal", 3))
sketch8.addConstraint(Sketcher.Constraint("Vertical", 4))
sketch8.addConstraint(Sketcher.Constraint("Horizontal", 5))
sketch8.addConstraint(Sketcher.Constraint("Vertical", 6))
sketch8.addConstraint(Sketcher.Constraint("Horizontal", 7))
sketch8.addConstraint(Sketcher.Constraint("Vertical", 8))
sketch8.addConstraint(Sketcher.Constraint("Horizontal", 9))
sketch8.addConstraint(Sketcher.Constraint("Vertical", 10))
sketch8.addConstraint(Sketcher.Constraint("Horizontal", 11))
sketch8.addConstraint(Sketcher.Constraint("Horizontal", 5, 2, 8, 2))
sketch8.addConstraint(Sketcher.Constraint("Horizontal", 7, 2, 10, 2))
sketch8.addConstraint(Sketcher.Constraint("Equal", 7, 9))
sketch8.addConstraint(Sketcher.Constraint("Equal", 11, 0))
sketch8.addConstraint(Sketcher.Constraint("Equal", 2, 4))
sketch8.addConstraint(Sketcher.Constraint("DistanceY", -1, 1, 0, 2, Q("1 in")))
sketch8.addConstraint(Sketcher.Constraint("DistanceX", 1, 1, 1, 2, Q("0.38 in")))
sketch8.addConstraint(Sketcher.Constraint("DistanceX", 5, 1, 5, 2, Q("0.25 in")))
sketch8.addConstraint(Sketcher.Constraint("DistanceY", -1, 1, 4, 2, Q("0.5 in")))
sketch8.addConstraint(Sketcher.Constraint("DistanceX", 5, 2, 8, 2, Q("0.915 in")))
sketch8.addConstraint(Sketcher.Constraint("DistanceX", 4, 2, 0, 2, Q("0.5175 in")))
sketch8.addConstraint(Sketcher.Constraint("DistanceX", -1, 1, 0, 2, Q("125.516105 mm")))
pocket6 = body.newObject("PartDesign::Pocket", "Pocket005")
pocket6.Profile = sketch8
pocket6.Type = "ThroughAll"

doc.recompute()
